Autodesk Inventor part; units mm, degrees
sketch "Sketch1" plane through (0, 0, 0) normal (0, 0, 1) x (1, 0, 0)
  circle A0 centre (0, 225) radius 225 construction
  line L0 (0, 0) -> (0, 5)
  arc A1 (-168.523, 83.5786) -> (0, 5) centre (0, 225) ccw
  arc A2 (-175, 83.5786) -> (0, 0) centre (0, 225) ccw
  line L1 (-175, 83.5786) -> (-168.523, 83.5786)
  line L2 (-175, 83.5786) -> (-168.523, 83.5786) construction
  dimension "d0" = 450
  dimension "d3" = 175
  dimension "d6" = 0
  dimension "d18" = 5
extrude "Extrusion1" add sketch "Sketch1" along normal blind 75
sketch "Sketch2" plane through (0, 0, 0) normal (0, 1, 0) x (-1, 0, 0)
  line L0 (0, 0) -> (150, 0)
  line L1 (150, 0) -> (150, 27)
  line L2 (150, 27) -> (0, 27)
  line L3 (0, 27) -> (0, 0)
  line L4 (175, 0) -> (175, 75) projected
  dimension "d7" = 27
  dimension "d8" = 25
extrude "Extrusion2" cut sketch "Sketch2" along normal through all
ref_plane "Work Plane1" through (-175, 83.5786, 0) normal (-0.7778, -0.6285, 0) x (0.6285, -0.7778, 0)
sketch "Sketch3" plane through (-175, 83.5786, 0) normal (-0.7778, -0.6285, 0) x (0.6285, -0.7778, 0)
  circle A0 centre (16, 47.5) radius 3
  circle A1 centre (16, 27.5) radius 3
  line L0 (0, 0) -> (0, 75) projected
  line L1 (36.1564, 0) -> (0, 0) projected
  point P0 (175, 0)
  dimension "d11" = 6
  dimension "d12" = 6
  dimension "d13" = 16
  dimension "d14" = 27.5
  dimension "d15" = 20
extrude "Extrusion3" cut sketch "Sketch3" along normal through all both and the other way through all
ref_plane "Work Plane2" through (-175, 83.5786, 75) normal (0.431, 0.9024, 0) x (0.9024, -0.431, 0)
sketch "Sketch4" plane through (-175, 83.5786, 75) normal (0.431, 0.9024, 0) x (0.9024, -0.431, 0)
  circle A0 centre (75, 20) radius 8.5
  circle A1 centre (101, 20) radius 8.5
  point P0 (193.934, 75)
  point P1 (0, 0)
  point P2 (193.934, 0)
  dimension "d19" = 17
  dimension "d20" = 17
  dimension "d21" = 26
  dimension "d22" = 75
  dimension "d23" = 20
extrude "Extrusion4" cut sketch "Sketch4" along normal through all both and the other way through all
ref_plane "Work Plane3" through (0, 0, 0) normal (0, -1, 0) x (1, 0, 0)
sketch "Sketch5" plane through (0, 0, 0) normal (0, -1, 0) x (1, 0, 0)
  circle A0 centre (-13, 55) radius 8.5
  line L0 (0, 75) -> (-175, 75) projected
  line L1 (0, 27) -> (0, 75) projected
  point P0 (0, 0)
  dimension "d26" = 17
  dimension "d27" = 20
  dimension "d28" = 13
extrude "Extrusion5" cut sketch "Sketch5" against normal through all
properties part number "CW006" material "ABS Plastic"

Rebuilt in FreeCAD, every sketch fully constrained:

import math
import FreeCAD as App
import Part
import Sketcher

doc = App.newDocument("Part")
body = doc.addObject("PartDesign::Body", "Body")

# Sketch on XY plane
sketch1 = body.newObject("Sketcher::SketchObject", "Sketch")
sketch1.AttachmentSupport = (doc.getObject("XY_Plane"), [""])
sketch1.MapMode = "FlatFace"
sketch1.addGeometry([
    Part.ArcOfCircle(Part.Circle(App.Vector(0, 225, 0), App.Vector(0, 0, 1), 225), math.radians(-141), math.radians(-90)),
    Part.LineSegment(App.Vector(0, 0, 0), App.Vector(0, 5, 0)),
    Part.ArcOfCircle(Part.Circle(App.Vector(0, 225, 0), App.Vector(0, 0, 1), 220), math.radians(-140), math.radians(-90)),
    Part.LineSegment(App.Vector(-169, 84, 0), App.Vector(-175, 84, 0)),
], False)
sketch1.addConstraint([
    Sketcher.Constraint("Coincident", 0, 2, 1, 1),
    Sketcher.Constraint("Coincident", 1, 2, 2, 2),
    Sketcher.Constraint("Coincident", 2, 1, 3, 1),
    Sketcher.Constraint("Coincident", 3, 2, 0, 1),
    Sketcher.Constraint("Vertical", 1),
    Sketcher.Constraint("Horizontal", 3),
    Sketcher.Constraint("Coincident", 0, 2, -1, 1),
    Sketcher.Constraint("Coincident", 2, 3, 0, 3),
    Sketcher.Constraint("PointOnObject", 0, 3, -2),
    Sketcher.Constraint("Radius", 0, 225.0),
    Sketcher.Constraint("DistanceY", 1, 1, 1, 2, 5.0),
    Sketcher.Constraint("DistanceX", 3, 2, -1, 1, 175.0),
])
pad1 = body.newObject("PartDesign::Pad", "Pad")
pad1.Profile = sketch1
pad1.Length = 75

# Sketch on XZ plane
sketch2 = body.newObject("Sketcher::SketchObject", "Sketch001")
sketch2.AttachmentSupport = (doc.getObject("XZ_Plane"), [""])
sketch2.MapMode = "FlatFace"
sketch2.addGeometry([
    Part.LineSegment(App.Vector(0, 27, 0), App.Vector(0, 0, 0)),
    Part.LineSegment(App.Vector(0, 0, 0), App.Vector(-150, 0, 0)),
    Part.LineSegment(App.Vector(-150, 0, 0), App.Vector(-150, 27, 0)),
    Part.LineSegment(App.Vector(-150, 27, 0), App.Vector(0, 27, 0)),
], False)
sketch2.addConstraint([
    Sketcher.Constraint("Coincident", 0, 2, 1, 1),
    Sketcher.Constraint("Coincident", 1, 2, 2, 1),
    Sketcher.Constraint("Coincident", 2, 2, 3, 1),
    Sketcher.Constraint("Coincident", 3, 2, 0, 1),
    Sketcher.Constraint("Vertical", 0),
    Sketcher.Constraint("Horizontal", 1),
    Sketcher.Constraint("Vertical", 2),
    Sketcher.Constraint("Horizontal", 3),
    Sketcher.Constraint("Coincident", 0, 2, -1, 1),
    Sketcher.Constraint("DistanceY", 0, 2, 0, 1, 27.0),
    Sketcher.Constraint("DistanceX", 1, 2, 1, 1, 150.0),
])
pocket1 = body.newObject("PartDesign::Pocket", "Pocket")
pocket1.Profile = sketch2
pocket1.Type = "ThroughAll"

# Sketch on an angled plane
sketch3 = body.newObject("Sketcher::SketchObject", "Sketch002")
sketch3.Placement = App.Placement(App.Vector(-175, 83.5786, 0), App.Rotation(App.Vector(0.628504686, -0.777805799, 0), App.Vector(0, 0, 1.000000001), App.Vector(-0.777805799, -0.628504686, 0), "ZXY"))
sketch3.addGeometry([
    Part.Circle(App.Vector(16, 47.5, 0), App.Vector(0, 0, 1), 3),
    Part.Circle(App.Vector(16, 27.5, 0), App.Vector(0, 0, 1), 3),
], False)
sketch3.addConstraint([
    Sketcher.Constraint("Equal", 0, 1),
    Sketcher.Constraint("Vertical", 0, 3, 1, 3),
    Sketcher.Constraint("Diameter", 0, 6.0),
    Sketcher.Constraint("DistanceX", -1, 1, 0, 3, 16.0),
    Sketcher.Constraint("DistanceY", 1, 3, 0, 3, 20.0),
    Sketcher.Constraint("DistanceY", -1, 1, 1, 3, 27.5),
])
pocket2 = body.newObject("PartDesign::Pocket", "Pocket001")
pocket2.Profile = sketch3
pocket2.Type = "ThroughAll"
pocket2.Midplane = True

# Sketch on an angled plane
sketch4 = body.newObject("Sketcher::SketchObject", "Sketch003")
sketch4.Placement = App.Placement(App.Vector(-175, 83.5786, 75), App.Rotation(App.Vector(0.902360856, -0.430981304, 0), App.Vector(0, 0, -0.999999999), App.Vector(0.430981304, 0.902360856, 0), "ZXY"))
sketch4.addGeometry([
    Part.Circle(App.Vector(75, 20, 0), App.Vector(0, 0, 1), 8),
    Part.Circle(App.Vector(101, 20, 0), App.Vector(0, 0, 1), 8),
], False)
sketch4.addConstraint([
    Sketcher.Constraint("Equal", 0, 1),
    Sketcher.Constraint("Horizontal", 0, 3, 1, 3),
    Sketcher.Constraint("Diameter", 0, 17.0),
    Sketcher.Constraint("DistanceX", -1, 1, 0, 3, 75.0),
    Sketcher.Constraint("DistanceY", -1, 1, 0, 3, 20.0),
    Sketcher.Constraint("DistanceX", 0, 3, 1, 3, 26.0),
])
pocket3 = body.newObject("PartDesign::Pocket", "Pocket002")
pocket3.Profile = sketch4
pocket3.Type = "ThroughAll"
pocket3.Midplane = True

# Sketch on XZ plane
sketch5 = body.newObject("Sketcher::SketchObject", "Sketch004")
sketch5.AttachmentSupport = (doc.getObject("XZ_Plane"), [""])
sketch5.MapMode = "FlatFace"
sketch5.addGeometry(Part.Circle(App.Vector(-13, 55, 0), App.Vector(0, 0, 1), 8), False)
sketch5.addConstraint([
    Sketcher.Constraint("Diameter", 0, 17.0),
    Sketcher.Constraint("DistanceX", 0, 3, -1, 1, 13.0),
    Sketcher.Constraint("DistanceY", -1, 1, 0, 3, 55.0),
])
pocket4 = body.newObject("PartDesign::Pocket", "Pocket003")
pocket4.Profile = sketch5
pocket4.Type = "ThroughAll"

doc.recompute()
